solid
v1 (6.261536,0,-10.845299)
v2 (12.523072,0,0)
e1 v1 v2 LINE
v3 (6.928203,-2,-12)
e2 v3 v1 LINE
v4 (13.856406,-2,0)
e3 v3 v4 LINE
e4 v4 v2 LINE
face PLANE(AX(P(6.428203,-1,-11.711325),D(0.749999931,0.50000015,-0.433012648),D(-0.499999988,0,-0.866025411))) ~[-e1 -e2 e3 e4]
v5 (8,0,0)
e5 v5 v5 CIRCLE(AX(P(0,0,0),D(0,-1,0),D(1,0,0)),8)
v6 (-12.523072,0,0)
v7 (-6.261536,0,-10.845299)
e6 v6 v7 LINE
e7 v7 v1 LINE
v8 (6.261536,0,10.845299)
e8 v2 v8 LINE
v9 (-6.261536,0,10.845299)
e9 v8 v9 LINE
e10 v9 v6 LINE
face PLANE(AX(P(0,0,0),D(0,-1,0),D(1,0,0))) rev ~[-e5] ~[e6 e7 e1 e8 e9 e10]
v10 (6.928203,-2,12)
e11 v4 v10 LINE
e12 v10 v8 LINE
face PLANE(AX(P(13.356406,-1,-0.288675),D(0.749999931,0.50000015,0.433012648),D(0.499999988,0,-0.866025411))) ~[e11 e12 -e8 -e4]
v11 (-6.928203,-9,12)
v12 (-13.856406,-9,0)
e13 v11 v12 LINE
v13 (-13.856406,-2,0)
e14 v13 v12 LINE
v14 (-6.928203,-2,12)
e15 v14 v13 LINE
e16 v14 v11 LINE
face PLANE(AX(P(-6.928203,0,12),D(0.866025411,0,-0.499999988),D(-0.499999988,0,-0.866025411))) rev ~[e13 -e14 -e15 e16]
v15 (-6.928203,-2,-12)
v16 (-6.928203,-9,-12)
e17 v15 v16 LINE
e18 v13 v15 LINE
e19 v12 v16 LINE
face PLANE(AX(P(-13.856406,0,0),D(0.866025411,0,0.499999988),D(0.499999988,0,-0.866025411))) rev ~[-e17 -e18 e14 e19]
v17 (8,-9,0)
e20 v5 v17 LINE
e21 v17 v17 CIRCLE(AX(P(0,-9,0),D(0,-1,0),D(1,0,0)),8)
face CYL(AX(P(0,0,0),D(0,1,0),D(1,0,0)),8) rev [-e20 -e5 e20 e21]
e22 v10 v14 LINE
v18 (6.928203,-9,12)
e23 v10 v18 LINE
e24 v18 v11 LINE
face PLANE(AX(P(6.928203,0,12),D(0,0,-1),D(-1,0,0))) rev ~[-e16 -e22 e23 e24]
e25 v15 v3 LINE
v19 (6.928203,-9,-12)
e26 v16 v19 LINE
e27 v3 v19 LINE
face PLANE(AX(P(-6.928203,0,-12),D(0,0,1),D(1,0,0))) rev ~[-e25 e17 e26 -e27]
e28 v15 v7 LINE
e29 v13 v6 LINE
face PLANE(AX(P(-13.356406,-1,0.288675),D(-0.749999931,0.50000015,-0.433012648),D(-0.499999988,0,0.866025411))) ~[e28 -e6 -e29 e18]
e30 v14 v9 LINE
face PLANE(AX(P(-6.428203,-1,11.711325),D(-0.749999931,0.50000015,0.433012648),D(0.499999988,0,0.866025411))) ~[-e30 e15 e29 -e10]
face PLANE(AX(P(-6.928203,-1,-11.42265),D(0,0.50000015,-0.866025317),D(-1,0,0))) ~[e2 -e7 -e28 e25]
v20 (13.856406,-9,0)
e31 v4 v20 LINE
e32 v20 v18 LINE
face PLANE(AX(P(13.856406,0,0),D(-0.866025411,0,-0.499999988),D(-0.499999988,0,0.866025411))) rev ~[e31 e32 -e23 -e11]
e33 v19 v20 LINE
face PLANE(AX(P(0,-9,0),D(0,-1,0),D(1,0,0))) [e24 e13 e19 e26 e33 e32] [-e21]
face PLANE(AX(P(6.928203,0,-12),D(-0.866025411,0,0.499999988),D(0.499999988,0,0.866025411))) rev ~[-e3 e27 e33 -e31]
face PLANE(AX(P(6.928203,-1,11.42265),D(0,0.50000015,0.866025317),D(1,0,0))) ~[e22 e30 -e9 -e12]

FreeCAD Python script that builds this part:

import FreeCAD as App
import Part
import Sketcher
from FreeCAD import Vector
Q = App.Units.Quantity


def edges_at(feature, points):
    """Names of the edges that pass closest to the given points."""
    edges = feature.Shape.Edges
    near = lambda p: min(range(len(edges)), key=lambda i: edges[i].distToShape(Part.Vertex(*p))[0])
    return sorted({f"Edge{near(p) + 1}" for p in points})


def add_polygon(sketch, points):
    """Adds a closed chain of lines whose ends are joined by coincident constraints."""
    first, n = sketch.GeometryCount, len(points)
    for a, b in zip(points, points[1:] + points[:1]):
        sketch.addGeometry(Part.LineSegment(App.Vector(*a, 0), App.Vector(*b, 0)), False)
    for i in range(n):
        sketch.addConstraint(Sketcher.Constraint("Coincident", first + i, 2, first + (i + 1) % n, 1))

doc = App.newDocument("Part")
body = doc.addObject("PartDesign::Body", "Body")

sketch1 = doc.addObject("Sketcher::SketchObject", "Sketch")
body.addObject(sketch1)
sketch1.AttachmentSupport = (doc.XZ_Plane, [""])
sketch1.MapMode = "FlatFace"
add_polygon(sketch1, [(7, 12), (-7, 12), (-14, 0), (-7, -12), (7, -12), (14, 0)])
sketch1.addGeometry(Part.Circle(Vector(0, 0, 0), Vector(0, 0, 1), 8), False)
sketch1.addConstraint([
    Sketcher.Constraint("Horizontal", 0),
    Sketcher.Constraint("Horizontal", 3),
    Sketcher.Constraint("Coincident", 6, 3, -1, 1),
    Sketcher.Constraint("Symmetric", 0, 2, 3, 2, -1, 1),
    Sketcher.Constraint("Symmetric", 1, 2, 4, 2, -1, 1),
    Sketcher.Constraint("PointOnObject", 1, 2, -1),
    Sketcher.Constraint("Parallel", 2, 5),
    Sketcher.Constraint("Vertical", 0, 2, 2, 2),
    Sketcher.Constraint("Diameter", 6, Q("16 mm")),
    Sketcher.Constraint("Angle", 1, Q("-119.999999 deg")),
    Sketcher.Constraint("DistanceY", -1, 1, 0, 2, Q("12 mm")),
    Sketcher.Constraint("DistanceX", 0, 2, 0, 1, Q("13.856406 mm")),
])
pad1 = doc.addObject("PartDesign::Pad", "Pad")
body.addObject(pad1)
pad1.Profile = sketch1
pad1.Length = 9
doc.recompute()

chamfer = doc.addObject("PartDesign::Chamfer", "Chamfer")
body.addObject(chamfer)
chamfer.Base = (pad1, edges_at(pad1, [
    (-10.392, 0, 6),
    (-10.392, 0, -6),
    (0, 0, 12),
    (10.392, 0, 6),
    (10.392, 0, -6),
    (0, 0, -12),
]))
chamfer.ChamferType = "Two distances"
chamfer.Size = 2
chamfer.Size2 = 1.154701

doc.recompute()
